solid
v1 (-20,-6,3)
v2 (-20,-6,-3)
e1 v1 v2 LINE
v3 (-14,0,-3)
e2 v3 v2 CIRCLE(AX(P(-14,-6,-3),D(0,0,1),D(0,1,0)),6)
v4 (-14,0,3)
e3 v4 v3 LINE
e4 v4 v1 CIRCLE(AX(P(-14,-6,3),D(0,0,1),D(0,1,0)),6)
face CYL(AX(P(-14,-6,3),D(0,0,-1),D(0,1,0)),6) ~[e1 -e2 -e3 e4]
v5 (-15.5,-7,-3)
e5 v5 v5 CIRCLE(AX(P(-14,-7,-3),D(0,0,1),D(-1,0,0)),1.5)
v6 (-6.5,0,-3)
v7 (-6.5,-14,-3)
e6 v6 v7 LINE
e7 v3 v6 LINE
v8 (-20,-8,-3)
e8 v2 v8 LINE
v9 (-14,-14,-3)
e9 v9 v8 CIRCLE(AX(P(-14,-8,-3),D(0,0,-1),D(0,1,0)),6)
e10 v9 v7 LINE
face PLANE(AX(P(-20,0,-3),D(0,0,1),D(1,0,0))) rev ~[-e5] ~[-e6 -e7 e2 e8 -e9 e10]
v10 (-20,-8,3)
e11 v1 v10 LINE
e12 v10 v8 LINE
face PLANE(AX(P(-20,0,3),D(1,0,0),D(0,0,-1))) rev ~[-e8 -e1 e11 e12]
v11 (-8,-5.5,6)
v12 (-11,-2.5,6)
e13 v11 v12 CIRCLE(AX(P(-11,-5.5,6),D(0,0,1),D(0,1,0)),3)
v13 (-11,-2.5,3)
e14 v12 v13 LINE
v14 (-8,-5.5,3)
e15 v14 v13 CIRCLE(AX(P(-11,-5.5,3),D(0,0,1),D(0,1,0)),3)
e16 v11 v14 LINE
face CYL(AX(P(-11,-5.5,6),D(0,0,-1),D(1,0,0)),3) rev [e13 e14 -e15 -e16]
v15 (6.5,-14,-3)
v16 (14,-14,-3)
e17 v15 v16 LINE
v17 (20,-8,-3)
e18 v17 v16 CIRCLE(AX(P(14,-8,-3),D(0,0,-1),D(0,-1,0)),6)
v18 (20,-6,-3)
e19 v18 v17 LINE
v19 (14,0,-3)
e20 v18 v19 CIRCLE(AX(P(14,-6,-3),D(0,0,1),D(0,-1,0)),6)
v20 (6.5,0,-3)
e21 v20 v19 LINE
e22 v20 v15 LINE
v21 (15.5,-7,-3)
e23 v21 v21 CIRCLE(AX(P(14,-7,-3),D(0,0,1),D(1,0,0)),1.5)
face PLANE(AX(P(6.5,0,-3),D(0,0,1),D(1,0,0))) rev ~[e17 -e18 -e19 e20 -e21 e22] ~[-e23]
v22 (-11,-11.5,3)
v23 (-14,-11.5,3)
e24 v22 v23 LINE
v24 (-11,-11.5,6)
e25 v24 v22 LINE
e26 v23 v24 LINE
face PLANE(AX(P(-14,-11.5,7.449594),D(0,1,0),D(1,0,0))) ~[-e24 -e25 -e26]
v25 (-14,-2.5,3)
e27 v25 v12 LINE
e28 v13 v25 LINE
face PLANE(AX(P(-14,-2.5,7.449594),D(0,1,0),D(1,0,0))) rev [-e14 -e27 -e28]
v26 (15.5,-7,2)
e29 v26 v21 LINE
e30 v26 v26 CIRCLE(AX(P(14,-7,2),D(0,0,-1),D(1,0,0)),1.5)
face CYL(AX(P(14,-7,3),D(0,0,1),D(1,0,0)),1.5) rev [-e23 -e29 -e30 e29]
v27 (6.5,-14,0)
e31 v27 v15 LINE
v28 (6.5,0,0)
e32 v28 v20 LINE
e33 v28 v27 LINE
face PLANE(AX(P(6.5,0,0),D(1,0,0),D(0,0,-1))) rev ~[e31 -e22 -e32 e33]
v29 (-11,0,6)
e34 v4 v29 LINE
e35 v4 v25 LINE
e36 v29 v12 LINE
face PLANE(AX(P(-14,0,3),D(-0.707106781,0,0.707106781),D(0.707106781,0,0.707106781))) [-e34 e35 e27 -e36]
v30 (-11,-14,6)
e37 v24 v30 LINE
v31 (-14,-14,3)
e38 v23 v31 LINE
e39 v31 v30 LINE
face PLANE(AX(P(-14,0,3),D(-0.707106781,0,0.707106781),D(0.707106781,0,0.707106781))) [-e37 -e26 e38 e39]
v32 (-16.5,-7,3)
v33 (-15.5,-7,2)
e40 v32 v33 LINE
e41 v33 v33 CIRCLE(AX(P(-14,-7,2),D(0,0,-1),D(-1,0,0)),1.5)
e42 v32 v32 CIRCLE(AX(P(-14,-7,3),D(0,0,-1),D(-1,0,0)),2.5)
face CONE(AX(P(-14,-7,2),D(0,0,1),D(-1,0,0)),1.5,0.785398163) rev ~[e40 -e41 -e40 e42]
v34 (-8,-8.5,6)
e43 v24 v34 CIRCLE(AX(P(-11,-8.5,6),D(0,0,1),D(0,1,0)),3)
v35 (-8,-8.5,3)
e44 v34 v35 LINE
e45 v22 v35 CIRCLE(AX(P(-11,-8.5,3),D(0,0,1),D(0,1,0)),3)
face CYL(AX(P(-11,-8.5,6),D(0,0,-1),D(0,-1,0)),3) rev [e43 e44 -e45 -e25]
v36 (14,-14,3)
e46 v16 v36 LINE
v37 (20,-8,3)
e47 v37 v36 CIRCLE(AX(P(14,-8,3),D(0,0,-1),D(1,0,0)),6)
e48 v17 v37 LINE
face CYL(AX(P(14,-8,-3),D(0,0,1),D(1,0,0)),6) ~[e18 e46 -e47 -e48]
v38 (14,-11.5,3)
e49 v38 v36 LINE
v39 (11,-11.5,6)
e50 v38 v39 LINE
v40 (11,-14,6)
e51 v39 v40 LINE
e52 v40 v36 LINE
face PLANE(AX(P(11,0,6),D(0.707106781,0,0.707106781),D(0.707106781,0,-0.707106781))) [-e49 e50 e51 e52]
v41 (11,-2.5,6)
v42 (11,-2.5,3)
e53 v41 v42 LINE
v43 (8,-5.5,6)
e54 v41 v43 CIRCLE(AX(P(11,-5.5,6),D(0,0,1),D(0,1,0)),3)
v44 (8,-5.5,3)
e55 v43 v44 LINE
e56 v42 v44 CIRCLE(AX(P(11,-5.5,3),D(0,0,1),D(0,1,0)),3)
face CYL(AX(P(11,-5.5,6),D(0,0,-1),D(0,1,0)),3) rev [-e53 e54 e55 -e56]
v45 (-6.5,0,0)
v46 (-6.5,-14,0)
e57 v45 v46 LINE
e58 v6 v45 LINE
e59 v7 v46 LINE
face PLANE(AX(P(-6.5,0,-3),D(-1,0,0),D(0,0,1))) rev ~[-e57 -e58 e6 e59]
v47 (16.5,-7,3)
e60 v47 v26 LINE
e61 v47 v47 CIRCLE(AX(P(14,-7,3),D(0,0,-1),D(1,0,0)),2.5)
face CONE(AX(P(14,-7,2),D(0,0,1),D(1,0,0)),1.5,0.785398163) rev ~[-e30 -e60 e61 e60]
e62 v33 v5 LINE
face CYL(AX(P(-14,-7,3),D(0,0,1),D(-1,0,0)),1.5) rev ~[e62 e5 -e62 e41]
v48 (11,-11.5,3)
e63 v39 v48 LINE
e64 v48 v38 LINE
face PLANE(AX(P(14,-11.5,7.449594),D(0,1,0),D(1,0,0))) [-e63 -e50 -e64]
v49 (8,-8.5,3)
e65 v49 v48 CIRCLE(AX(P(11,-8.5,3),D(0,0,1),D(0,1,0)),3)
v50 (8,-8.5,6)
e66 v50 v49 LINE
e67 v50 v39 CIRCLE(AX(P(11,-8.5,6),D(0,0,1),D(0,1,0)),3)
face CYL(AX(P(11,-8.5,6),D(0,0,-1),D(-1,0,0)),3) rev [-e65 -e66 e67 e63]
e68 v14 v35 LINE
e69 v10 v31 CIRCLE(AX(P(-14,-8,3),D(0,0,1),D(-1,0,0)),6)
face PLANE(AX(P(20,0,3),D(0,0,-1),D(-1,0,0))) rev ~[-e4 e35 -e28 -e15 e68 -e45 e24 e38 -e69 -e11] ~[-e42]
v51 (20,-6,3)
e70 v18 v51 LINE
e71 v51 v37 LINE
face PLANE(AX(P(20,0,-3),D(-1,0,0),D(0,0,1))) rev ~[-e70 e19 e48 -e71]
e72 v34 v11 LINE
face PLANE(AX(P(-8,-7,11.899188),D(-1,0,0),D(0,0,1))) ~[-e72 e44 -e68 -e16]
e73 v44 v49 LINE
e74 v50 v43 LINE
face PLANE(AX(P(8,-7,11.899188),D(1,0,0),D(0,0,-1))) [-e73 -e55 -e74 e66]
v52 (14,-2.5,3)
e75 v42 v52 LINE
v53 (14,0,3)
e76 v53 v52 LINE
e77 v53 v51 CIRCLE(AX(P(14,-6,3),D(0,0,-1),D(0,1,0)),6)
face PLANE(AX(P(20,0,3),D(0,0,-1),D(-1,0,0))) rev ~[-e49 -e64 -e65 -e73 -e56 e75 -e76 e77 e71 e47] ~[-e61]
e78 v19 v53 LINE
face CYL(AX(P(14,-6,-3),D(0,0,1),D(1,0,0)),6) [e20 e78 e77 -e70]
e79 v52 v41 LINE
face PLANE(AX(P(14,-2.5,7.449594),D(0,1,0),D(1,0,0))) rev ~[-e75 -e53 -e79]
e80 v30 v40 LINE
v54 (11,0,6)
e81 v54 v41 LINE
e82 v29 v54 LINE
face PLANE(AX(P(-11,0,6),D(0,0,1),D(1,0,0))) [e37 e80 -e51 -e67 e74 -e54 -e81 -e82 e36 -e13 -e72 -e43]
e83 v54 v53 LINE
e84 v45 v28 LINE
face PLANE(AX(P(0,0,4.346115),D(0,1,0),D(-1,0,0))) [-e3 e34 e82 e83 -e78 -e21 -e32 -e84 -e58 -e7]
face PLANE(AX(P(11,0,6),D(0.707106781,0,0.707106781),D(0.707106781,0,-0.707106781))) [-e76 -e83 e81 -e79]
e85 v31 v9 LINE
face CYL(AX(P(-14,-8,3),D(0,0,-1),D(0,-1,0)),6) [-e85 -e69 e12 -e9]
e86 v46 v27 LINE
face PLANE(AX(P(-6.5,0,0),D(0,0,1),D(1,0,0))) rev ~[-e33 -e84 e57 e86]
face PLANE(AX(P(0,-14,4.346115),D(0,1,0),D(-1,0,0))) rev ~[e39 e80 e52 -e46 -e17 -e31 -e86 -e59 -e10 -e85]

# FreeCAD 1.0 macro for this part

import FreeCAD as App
import Part
import Sketcher


def edges_at(feature, points):
    """Names of the edges that pass closest to the given points."""
    edges = feature.Shape.Edges
    near = lambda p: min(range(len(edges)), key=lambda i: edges[i].distToShape(Part.Vertex(*p))[0])
    return sorted({f"Edge{near(p) + 1}" for p in points})

doc = App.newDocument("Part")
body = doc.addObject("PartDesign::Body", "Body")

sketch1 = body.newObject("Sketcher::SketchObject", "Sketch")
sketch1.AttachmentSupport = (doc.getObject("XZ_Plane"), [""])
sketch1.MapMode = "FlatFace"
sketch1.addGeometry(Part.LineSegment(App.Vector(20, -3, 0), App.Vector(20, 3, 0)), False)
sketch1.addGeometry(Part.LineSegment(App.Vector(20, 3, 0), App.Vector(-20, 3, 0)), False)
sketch1.addGeometry(Part.LineSegment(App.Vector(-20, 3, 0), App.Vector(-20, -3, 0)), False)
sketch1.addGeometry(Part.LineSegment(App.Vector(-20, -3, 0), App.Vector(-6.5, -3, 0)), False)
sketch1.addGeometry(Part.LineSegment(App.Vector(-6.5, -3, 0), App.Vector(-6.5, 0, 0)), False)
sketch1.addGeometry(Part.LineSegment(App.Vector(-6.5, 0, 0), App.Vector(6.5, 0, 0)), False)
sketch1.addGeometry(Part.LineSegment(App.Vector(6.5, 0, 0), App.Vector(6.5, -3, 0)), False)
sketch1.addGeometry(Part.LineSegment(App.Vector(6.5, -3, 0), App.Vector(20, -3, 0)), False)
sketch1.addConstraint(Sketcher.Constraint("Coincident", 0, 2, 1, 1))
sketch1.addConstraint(Sketcher.Constraint("Coincident", 1, 2, 2, 1))
sketch1.addConstraint(Sketcher.Constraint("Coincident", 2, 2, 3, 1))
sketch1.addConstraint(Sketcher.Constraint("Coincident", 3, 2, 4, 1))
sketch1.addConstraint(Sketcher.Constraint("Coincident", 4, 2, 5, 1))
sketch1.addConstraint(Sketcher.Constraint("Coincident", 5, 2, 6, 1))
sketch1.addConstraint(Sketcher.Constraint("Coincident", 6, 2, 7, 1))
sketch1.addConstraint(Sketcher.Constraint("Coincident", 7, 2, 0, 1))
sketch1.addConstraint(Sketcher.Constraint("Vertical", 0))
sketch1.addConstraint(Sketcher.Constraint("Horizontal", 1))
sketch1.addConstraint(Sketcher.Constraint("Vertical", 2))
sketch1.addConstraint(Sketcher.Constraint("Horizontal", 3))
sketch1.addConstraint(Sketcher.Constraint("Vertical", 4))
sketch1.addConstraint(Sketcher.Constraint("Horizontal", 5))
sketch1.addConstraint(Sketcher.Constraint("Vertical", 6))
sketch1.addConstraint(Sketcher.Constraint("Horizontal", 7))
sketch1.addConstraint(Sketcher.Constraint("Symmetric", 0, 2, 2, 2, -1, 1))
sketch1.addConstraint(Sketcher.Constraint("Symmetric", 4, 2, 5, 2, -1, 1))
sketch1.addConstraint(Sketcher.Constraint("Horizontal", 3, 2, 6, 2))
sketch1.addConstraint(Sketcher.Constraint("DistanceX", 1, 2, 1, 1, 40.0))
sketch1.addConstraint(Sketcher.Constraint("DistanceX", 5, 1, 5, 2, 13.0))
sketch1.addConstraint(Sketcher.Constraint("DistanceY", 0, 1, 0, 2, 6.0))
pad1 = body.newObject("PartDesign::Pad", "Pad")
pad1.Profile = sketch1
pad1.Length = 14

sketch2 = body.newObject("Sketcher::SketchObject", "Sketch001")
sketch2.AttachmentSupport = (doc.getObject("XY_Plane"), [""])
sketch2.MapMode = "FlatFace"
sketch2.AttachmentOffset = App.Placement(App.Vector(0, 0, 3), App.Rotation())
sketch2.addGeometry(Part.Circle(App.Vector(-14, -7, 0), App.Vector(0, 0, 1), 1.5), False)
sketch2.addConstraint(Sketcher.Constraint("Diameter", 0, 3.0))
sketch2.addConstraint(Sketcher.Constraint("DistanceX", 0, 3, -1, 1, 14.0))
sketch2.addConstraint(Sketcher.Constraint("DistanceY", 0, 3, -1, 1, 7.0))
pocket1 = body.newObject("PartDesign::Pocket", "Pocket")
pocket1.Profile = sketch2
pocket1.Type = "ThroughAll"
doc.recompute()

mirrored = body.newObject("PartDesign::Mirrored", "Mirrored")
mirrored.Originals = [pocket1]
mirrored.MirrorPlane = (doc.getObject("YZ_Plane"), [""])
body.Tip = mirrored
doc.recompute()

fillet = body.newObject("PartDesign::Fillet", "Fillet")
fillet.Base = (mirrored, edges_at(mirrored, [
    (-20, -14, 0),
    (20, -14, 0),
    (20, 0, 0),
    (-20, 0, 0),
]))
fillet.Radius = 6

sketch3 = body.newObject("Sketcher::SketchObject", "Sketch002")
sketch3.AttachmentSupport = (doc.getObject("XZ_Plane"), [""])
sketch3.MapMode = "FlatFace"
sketch3.addGeometry(Part.LineSegment(App.Vector(-11, 6, 0), App.Vector(-14, 3, 0)), False)
sketch3.addGeometry(Part.LineSegment(App.Vector(-14, 3, 0), App.Vector(14, 3, 0)), False)
sketch3.addGeometry(Part.LineSegment(App.Vector(14, 3, 0), App.Vector(11, 6, 0)), False)
sketch3.addGeometry(Part.LineSegment(App.Vector(11, 6, 0), App.Vector(-11, 6, 0)), False)
sketch3.addConstraint(Sketcher.Constraint("Coincident", 0, 2, 1, 1))
sketch3.addConstraint(Sketcher.Constraint("Coincident", 1, 2, 2, 1))
sketch3.addConstraint(Sketcher.Constraint("Coincident", 2, 2, 3, 1))
sketch3.addConstraint(Sketcher.Constraint("Coincident", 3, 2, 0, 1))
sketch3.addConstraint(Sketcher.Constraint("Horizontal", 1))
sketch3.addConstraint(Sketcher.Constraint("Horizontal", 3))
sketch3.addConstraint(Sketcher.Constraint("Perpendicular", 0, 2))
sketch3.addConstraint(Sketcher.Constraint("Equal", 0, 2))
sketch3.addConstraint(Sketcher.Constraint("DistanceX", 1, 1, 1, 2, 28.0))
sketch3.addConstraint(Sketcher.Constraint("DistanceX", 3, 2, 3, 1, 22.0))
sketch3.addConstraint(Sketcher.Constraint("DistanceX", 0, 2, -1, 1, 14.0))
sketch3.addConstraint(Sketcher.Constraint("DistanceY", -1, 1, 0, 2, 3.0))
pad2 = body.newObject("PartDesign::Pad", "Pad001")
pad2.Profile = sketch3
pad2.Length = 14

sketch4 = body.newObject("Sketcher::SketchObject", "Sketch003")
sketch4.AttachmentSupport = (doc.getObject("XZ_Plane"), [""])
sketch4.MapMode = "FlatFace"
sketch4.AttachmentOffset = App.Placement(App.Vector(0, 0, 7), App.Rotation())
sketch4.addGeometry(Part.LineSegment(App.Vector(8, 3, 0), App.Vector(8, 12, 0)), False)
sketch4.addGeometry(Part.LineSegment(App.Vector(8, 12, 0), App.Vector(20, 12, 0)), False)
sketch4.addGeometry(Part.LineSegment(App.Vector(20, 12, 0), App.Vector(20, 3, 0)), False)
sketch4.addGeometry(Part.LineSegment(App.Vector(20, 3, 0), App.Vector(8, 3, 0)), False)
sketch4.addConstraint(Sketcher.Constraint("Coincident", 0, 2, 1, 1))
sketch4.addConstraint(Sketcher.Constraint("Coincident", 1, 2, 2, 1))
sketch4.addConstraint(Sketcher.Constraint("Coincident", 2, 2, 3, 1))
sketch4.addConstraint(Sketcher.Constraint("Coincident", 3, 2, 0, 1))
sketch4.addConstraint(Sketcher.Constraint("Vertical", 0))
sketch4.addConstraint(Sketcher.Constraint("Horizontal", 1))
sketch4.addConstraint(Sketcher.Constraint("Vertical", 2))
sketch4.addConstraint(Sketcher.Constraint("Horizontal", 3))
sketch4.addConstraint(Sketcher.Constraint("DistanceX", 1, 1, 1, 2, 12.0))
sketch4.addConstraint(Sketcher.Constraint("DistanceX", -1, 1, 0, 2, 8.0))
sketch4.addConstraint(Sketcher.Constraint("DistanceY", -1, 1, 2, 2, 3.0))
sketch4.addConstraint(Sketcher.Constraint("DistanceY", 0, 1, 0, 2, 8.899188))
pocket2 = body.newObject("PartDesign::Pocket", "Pocket001")
pocket2.Profile = sketch4
pocket2.Length = 9
pocket2.Midplane = True
doc.recompute()

mirrored2 = body.newObject("PartDesign::Mirrored", "Mirrored001")
mirrored2.Originals = [pocket2]
mirrored2.MirrorPlane = (doc.getObject("YZ_Plane"), [""])
body.Tip = mirrored2
doc.recompute()

fillet2 = body.newObject("PartDesign::Fillet", "Fillet001")
fillet2.Base = (mirrored2, edges_at(mirrored2, [
    (-8, -11.5, 4.5),
    (8, -11.5, 4.5),
    (-8, -2.5, 4.5),
    (8, -2.5, 4.5),
]))
fillet2.Radius = 3
doc.recompute()

chamfer = body.newObject("PartDesign::Chamfer", "Chamfer")
chamfer.Base = (fillet2, edges_at(fillet2, [(-12.5, -7, 3), (12.5, -7, 3)]))
chamfer.Size = 1

doc.recompute()
